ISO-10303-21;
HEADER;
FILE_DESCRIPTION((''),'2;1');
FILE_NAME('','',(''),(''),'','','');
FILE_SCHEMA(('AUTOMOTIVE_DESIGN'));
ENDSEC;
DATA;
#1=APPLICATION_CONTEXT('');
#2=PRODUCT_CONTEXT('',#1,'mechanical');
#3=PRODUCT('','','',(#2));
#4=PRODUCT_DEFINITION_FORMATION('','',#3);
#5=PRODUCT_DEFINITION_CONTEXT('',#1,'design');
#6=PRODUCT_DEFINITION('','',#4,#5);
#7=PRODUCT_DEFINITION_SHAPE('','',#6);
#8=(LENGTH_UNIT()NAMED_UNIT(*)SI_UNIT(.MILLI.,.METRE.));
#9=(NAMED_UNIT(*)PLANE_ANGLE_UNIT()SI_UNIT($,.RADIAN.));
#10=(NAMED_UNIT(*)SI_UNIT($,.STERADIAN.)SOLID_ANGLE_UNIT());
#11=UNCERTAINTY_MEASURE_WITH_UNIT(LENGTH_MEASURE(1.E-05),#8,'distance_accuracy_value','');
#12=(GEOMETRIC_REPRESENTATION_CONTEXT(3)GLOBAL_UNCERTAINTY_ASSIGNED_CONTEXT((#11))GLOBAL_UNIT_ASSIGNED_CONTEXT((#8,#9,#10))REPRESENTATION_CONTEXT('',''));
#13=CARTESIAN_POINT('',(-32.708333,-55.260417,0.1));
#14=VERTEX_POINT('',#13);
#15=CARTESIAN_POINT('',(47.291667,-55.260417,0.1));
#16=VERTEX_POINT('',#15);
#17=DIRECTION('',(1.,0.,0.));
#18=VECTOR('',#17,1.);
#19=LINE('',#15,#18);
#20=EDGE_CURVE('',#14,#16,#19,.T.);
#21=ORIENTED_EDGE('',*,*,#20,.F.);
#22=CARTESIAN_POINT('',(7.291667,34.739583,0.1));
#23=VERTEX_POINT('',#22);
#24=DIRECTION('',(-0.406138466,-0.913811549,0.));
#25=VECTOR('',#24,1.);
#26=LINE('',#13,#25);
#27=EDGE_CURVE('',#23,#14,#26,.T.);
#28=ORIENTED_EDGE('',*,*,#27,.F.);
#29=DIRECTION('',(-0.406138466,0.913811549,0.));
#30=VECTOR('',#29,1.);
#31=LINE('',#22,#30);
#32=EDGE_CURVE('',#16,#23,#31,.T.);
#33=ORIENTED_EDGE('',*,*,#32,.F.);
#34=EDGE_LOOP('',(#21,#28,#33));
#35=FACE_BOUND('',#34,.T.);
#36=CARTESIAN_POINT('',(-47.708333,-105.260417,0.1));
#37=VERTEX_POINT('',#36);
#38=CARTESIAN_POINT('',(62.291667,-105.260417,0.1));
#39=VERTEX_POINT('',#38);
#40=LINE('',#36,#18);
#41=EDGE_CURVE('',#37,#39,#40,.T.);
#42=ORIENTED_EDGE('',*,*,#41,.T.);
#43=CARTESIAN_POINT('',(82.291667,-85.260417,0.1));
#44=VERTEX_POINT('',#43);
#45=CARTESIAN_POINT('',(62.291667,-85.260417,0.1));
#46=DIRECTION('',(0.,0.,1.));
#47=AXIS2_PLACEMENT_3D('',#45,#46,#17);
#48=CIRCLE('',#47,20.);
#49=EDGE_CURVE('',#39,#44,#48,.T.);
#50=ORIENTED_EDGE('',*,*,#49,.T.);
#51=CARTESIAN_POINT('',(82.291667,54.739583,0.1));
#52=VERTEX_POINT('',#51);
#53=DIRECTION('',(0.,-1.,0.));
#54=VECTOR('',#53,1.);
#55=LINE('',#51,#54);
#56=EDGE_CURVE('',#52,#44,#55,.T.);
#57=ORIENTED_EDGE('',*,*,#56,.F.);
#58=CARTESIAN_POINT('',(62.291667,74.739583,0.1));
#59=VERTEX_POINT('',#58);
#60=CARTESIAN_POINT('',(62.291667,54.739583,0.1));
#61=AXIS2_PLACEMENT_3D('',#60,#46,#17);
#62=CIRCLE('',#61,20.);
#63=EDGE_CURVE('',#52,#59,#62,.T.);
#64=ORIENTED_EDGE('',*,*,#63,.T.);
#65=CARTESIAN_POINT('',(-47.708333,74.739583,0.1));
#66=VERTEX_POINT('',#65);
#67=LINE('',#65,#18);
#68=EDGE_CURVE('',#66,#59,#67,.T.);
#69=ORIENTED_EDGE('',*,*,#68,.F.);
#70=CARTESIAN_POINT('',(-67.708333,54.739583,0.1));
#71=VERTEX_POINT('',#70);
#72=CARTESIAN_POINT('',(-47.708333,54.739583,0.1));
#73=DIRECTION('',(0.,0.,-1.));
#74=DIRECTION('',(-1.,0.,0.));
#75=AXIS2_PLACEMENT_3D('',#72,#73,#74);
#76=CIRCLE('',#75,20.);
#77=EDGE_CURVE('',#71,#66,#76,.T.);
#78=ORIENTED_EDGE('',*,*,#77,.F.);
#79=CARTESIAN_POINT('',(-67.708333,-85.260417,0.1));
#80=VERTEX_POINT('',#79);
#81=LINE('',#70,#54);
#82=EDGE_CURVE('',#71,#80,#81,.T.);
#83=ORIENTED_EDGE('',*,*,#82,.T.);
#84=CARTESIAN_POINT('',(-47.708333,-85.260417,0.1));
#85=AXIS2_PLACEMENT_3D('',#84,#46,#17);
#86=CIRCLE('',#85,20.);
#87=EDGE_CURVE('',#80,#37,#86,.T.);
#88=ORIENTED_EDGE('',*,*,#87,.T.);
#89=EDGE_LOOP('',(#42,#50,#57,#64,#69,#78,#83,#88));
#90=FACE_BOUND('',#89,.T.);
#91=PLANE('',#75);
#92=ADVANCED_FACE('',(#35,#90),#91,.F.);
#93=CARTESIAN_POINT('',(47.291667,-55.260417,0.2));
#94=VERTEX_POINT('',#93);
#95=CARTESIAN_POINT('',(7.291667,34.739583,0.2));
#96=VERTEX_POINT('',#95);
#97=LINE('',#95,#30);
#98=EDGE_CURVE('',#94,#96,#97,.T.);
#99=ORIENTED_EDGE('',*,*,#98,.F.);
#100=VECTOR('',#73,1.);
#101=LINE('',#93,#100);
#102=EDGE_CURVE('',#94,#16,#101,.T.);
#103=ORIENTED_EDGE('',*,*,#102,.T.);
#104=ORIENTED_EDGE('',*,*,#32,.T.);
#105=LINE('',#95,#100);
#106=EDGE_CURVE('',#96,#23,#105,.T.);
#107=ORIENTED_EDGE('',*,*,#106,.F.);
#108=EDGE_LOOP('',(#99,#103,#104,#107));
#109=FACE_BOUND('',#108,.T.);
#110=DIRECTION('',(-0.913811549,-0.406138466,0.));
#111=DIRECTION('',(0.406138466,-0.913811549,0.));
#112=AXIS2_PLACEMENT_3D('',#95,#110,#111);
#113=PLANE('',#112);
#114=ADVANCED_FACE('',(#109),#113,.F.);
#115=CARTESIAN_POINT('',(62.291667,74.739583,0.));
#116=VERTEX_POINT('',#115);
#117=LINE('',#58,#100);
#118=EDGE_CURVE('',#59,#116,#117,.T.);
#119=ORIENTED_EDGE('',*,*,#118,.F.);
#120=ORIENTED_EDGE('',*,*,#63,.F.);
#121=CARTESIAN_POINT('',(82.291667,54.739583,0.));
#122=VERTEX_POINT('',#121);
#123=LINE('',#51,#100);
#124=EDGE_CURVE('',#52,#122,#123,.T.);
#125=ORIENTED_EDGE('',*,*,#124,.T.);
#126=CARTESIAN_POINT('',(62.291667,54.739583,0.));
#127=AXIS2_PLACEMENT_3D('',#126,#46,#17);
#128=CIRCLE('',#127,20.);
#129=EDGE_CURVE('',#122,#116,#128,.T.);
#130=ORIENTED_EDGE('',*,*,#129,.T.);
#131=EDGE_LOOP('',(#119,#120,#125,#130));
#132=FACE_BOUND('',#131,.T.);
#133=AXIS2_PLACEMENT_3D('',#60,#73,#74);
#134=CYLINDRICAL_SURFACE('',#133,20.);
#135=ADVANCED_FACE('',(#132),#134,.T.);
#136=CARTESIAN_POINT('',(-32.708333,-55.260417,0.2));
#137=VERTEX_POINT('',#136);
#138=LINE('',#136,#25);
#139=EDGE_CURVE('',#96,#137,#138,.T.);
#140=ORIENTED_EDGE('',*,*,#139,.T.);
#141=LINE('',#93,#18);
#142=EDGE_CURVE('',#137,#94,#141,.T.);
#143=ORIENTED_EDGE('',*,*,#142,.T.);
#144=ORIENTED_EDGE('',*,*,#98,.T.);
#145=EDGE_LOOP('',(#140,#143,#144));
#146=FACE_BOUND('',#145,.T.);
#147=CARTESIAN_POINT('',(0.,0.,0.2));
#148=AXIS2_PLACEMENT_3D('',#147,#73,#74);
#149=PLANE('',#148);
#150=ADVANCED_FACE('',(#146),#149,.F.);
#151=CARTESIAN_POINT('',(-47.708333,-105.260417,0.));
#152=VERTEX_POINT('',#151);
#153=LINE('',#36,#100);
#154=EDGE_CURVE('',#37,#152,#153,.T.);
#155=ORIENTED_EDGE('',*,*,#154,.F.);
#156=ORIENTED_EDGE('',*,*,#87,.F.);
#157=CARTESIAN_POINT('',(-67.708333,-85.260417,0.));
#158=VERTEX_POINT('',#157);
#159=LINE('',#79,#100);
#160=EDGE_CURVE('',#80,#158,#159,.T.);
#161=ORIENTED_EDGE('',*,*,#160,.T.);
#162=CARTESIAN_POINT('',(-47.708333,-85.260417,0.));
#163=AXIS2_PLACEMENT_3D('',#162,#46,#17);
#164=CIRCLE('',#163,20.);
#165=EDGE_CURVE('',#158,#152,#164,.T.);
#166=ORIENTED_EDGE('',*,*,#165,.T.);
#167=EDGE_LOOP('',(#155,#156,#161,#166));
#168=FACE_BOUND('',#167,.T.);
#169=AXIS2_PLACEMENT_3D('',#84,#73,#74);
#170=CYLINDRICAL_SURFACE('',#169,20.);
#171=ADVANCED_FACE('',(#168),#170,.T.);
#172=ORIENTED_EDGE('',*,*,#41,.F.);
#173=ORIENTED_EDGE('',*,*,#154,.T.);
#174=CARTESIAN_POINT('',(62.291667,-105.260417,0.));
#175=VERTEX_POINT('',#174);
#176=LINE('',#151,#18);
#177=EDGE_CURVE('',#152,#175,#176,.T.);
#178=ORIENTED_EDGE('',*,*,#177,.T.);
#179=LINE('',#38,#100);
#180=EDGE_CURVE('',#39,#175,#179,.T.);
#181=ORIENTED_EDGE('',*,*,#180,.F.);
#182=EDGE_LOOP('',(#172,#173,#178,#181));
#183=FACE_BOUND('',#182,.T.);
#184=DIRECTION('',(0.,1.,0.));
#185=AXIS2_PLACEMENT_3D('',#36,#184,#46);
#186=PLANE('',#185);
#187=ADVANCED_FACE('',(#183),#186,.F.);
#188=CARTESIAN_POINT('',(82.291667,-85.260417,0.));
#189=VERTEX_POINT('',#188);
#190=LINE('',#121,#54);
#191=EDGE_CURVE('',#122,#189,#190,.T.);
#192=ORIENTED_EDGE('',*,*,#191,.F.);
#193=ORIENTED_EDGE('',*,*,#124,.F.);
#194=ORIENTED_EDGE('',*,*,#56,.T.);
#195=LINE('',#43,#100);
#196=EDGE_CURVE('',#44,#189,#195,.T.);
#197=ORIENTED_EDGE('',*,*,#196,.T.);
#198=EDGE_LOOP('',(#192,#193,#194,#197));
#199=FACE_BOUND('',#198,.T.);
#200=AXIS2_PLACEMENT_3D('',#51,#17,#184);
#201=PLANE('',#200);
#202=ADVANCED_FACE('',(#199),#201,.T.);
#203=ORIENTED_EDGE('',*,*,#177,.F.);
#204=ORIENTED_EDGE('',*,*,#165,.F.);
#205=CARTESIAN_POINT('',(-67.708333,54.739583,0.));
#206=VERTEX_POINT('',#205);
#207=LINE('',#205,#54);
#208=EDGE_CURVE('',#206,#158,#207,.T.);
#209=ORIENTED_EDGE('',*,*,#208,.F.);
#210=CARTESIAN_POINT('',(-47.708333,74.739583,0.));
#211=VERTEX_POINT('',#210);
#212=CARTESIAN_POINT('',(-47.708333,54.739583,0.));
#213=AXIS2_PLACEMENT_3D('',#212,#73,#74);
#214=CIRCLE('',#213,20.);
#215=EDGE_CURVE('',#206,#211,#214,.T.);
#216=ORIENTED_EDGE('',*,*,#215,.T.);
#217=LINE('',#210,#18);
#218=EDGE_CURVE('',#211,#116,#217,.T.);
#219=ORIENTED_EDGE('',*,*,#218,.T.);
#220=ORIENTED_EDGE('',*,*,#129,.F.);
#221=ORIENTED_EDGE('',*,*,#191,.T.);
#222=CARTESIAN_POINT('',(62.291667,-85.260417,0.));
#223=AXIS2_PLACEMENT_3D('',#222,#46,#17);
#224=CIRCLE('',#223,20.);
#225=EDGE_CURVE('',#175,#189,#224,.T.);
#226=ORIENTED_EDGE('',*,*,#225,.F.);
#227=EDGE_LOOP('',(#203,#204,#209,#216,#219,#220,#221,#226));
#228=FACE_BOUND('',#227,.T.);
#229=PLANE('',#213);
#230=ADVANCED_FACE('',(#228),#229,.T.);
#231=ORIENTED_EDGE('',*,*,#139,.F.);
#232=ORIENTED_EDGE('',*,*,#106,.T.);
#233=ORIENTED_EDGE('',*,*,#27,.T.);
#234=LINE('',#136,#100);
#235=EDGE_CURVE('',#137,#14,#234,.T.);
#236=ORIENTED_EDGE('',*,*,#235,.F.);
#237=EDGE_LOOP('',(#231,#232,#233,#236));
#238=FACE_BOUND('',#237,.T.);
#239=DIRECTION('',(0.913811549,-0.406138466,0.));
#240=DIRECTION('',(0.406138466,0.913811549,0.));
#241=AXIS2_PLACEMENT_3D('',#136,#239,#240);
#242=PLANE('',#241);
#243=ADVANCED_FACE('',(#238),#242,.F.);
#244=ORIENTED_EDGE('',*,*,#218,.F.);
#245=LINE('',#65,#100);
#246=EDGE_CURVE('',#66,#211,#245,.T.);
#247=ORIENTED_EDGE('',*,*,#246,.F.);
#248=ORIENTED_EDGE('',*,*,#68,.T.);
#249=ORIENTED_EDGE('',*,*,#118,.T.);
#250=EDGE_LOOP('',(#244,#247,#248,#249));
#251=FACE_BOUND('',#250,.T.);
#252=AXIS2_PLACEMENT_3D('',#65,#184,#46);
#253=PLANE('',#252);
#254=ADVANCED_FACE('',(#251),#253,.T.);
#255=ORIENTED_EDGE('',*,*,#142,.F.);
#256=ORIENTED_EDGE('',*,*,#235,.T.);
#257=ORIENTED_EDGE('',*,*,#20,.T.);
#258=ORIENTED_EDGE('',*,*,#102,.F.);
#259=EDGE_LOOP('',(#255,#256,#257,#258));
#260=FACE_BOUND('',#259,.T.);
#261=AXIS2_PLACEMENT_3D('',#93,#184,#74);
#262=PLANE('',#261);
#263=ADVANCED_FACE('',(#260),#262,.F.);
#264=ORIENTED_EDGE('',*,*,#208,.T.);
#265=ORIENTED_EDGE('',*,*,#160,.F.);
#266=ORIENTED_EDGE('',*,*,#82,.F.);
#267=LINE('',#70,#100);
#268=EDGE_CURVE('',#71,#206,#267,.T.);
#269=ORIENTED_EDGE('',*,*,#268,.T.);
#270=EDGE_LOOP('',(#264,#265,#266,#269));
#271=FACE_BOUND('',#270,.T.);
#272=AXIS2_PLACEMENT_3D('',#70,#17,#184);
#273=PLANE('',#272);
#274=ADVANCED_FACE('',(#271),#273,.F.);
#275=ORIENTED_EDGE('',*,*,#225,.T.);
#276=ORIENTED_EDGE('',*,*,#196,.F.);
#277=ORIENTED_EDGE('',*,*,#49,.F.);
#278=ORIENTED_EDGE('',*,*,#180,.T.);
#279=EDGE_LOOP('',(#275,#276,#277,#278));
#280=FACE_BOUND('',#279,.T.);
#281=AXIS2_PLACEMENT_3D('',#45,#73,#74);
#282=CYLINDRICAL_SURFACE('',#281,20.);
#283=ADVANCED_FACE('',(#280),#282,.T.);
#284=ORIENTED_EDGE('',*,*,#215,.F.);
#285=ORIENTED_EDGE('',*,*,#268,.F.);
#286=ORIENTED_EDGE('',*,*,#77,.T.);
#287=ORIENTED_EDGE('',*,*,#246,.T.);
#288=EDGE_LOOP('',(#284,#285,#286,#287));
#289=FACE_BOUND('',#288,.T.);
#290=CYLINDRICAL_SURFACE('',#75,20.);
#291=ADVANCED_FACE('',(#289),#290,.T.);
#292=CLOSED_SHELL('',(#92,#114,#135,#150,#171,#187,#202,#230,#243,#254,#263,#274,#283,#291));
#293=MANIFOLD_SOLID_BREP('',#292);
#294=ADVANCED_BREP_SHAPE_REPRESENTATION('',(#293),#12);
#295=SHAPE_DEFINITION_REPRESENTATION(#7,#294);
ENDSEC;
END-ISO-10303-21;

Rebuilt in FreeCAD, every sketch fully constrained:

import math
import FreeCAD as App
import Part
import Sketcher

V = App.Vector

doc = App.newDocument("Part")
params = doc.addObject("Spreadsheet::Sheet", "Params")
for row, (alias, value) in enumerate([
    ("sketch1_radius", "20 mm"),
    ("sketch1_width", "110 mm"),
    ("sketch1_height", "140 mm"),
    ("pad1_length", "0.1 mm"),
    ("sketch2_width", "80 mm"),
    ("pad2_length", "0.1 mm"),
], start=1):
    params.set(f"A{row}", alias)
    params.set(f"B{row}", "=" + value)
    params.setAlias(f"B{row}", alias)

body = doc.addObject("PartDesign::Body", "Body")

sketch1 = body.newObject("Sketcher::SketchObject", "Sketch")
sketch1.AttachmentSupport = (doc.getObject("XY_Plane"), [""])
sketch1.MapMode = "FlatFace"
sketch1.addGeometry([
    Part.LineSegment(V(62, 75, 0), V(-48, 75, 0)),
    Part.ArcOfCircle(Part.Circle(V(-48, 55, 0), V(0, 0, 1), 20), math.radians(90), math.radians(180)),
    Part.LineSegment(V(-68, 55, 0), V(-68, -85, 0)),
    Part.ArcOfCircle(Part.Circle(V(-48, -85, 0), V(0, 0, 1), 20), math.radians(-180), math.radians(-90)),
    Part.LineSegment(V(-48, -105, 0), V(62, -105, 0)),
    Part.ArcOfCircle(Part.Circle(V(62, -85, 0), V(0, 0, 1), 20), math.radians(-90), math.radians(0)),
    Part.LineSegment(V(82, -85, 0), V(82, 55, 0)),
    Part.ArcOfCircle(Part.Circle(V(62, 55, 0), V(0, 0, 1), 20), math.radians(0), math.radians(90)),
], False)
sketch1.addConstraint([
    Sketcher.Constraint("Tangent", 0, 2, 1, 1),
    Sketcher.Constraint("Tangent", 1, 2, 2, 1),
    Sketcher.Constraint("Tangent", 2, 2, 3, 1),
    Sketcher.Constraint("Tangent", 3, 2, 4, 1),
    Sketcher.Constraint("Tangent", 4, 2, 5, 1),
    Sketcher.Constraint("Tangent", 5, 2, 6, 1),
    Sketcher.Constraint("Tangent", 6, 2, 7, 1),
    Sketcher.Constraint("Tangent", 7, 2, 0, 1),
    Sketcher.Constraint("Horizontal", 0),
    Sketcher.Constraint("Vertical", 2),
    Sketcher.Constraint("Horizontal", 4),
    Sketcher.Constraint("Vertical", 6),
    Sketcher.Constraint("Equal", 1, 3),
    Sketcher.Constraint("Equal", 3, 5),
    Sketcher.Constraint("Equal", 5, 7),
    Sketcher.Constraint("Radius", 1, 20.0),
    Sketcher.Constraint("DistanceX", 0, 2, 0, 1, 110.0),
    Sketcher.Constraint("DistanceY", 2, 2, 2, 1, 140.0),
    Sketcher.Constraint("DistanceX", 1, 3, -1, 1, 47.708333),
    Sketcher.Constraint("DistanceY", -1, 1, 1, 3, 54.739583),
])
sketch1.setExpression("Constraints[15]", "Params.sketch1_radius")
sketch1.setExpression("Constraints[16]", "Params.sketch1_width")
sketch1.setExpression("Constraints[17]", "Params.sketch1_height")
pad1 = body.newObject("PartDesign::Pad", "Pad")
pad1.Profile = sketch1
pad1.setExpression("Length", "Params.pad1_length")

sketch2 = body.newObject("Sketcher::SketchObject", "Sketch001")
sketch2.AttachmentSupport = (doc.getObject("XY_Plane"), [""])
sketch2.MapMode = "FlatFace"
sketch2.AttachmentOffset = App.Placement(V(0, 0, 0.1), App.Rotation())
sketch2.addGeometry([
    Part.LineSegment(V(7, 35, 0), V(-33, -55, 0)),
    Part.LineSegment(V(-33, -55, 0), V(47, -55, 0)),
    Part.LineSegment(V(47, -55, 0), V(7, 35, 0)),
], False)
sketch2.addConstraint([
    Sketcher.Constraint("Coincident", 0, 2, 1, 1),
    Sketcher.Constraint("Coincident", 1, 2, 2, 1),
    Sketcher.Constraint("Coincident", 2, 2, 0, 1),
    Sketcher.Constraint("Horizontal", 1),
    Sketcher.Constraint("Equal", 0, 2),
    Sketcher.Constraint("DistanceX", 1, 1, 1, 2, 80.0),
    Sketcher.Constraint("DistanceY", 0, 2, 2, 2, 90.0),
    Sketcher.Constraint("DistanceX", 0, 2, -1, 1, 32.708333),
    Sketcher.Constraint("DistanceY", 0, 2, -1, 1, 55.260417),
])
sketch2.setExpression("Constraints[5]", "Params.sketch2_width")
pad2 = body.newObject("PartDesign::Pad", "Pad001")
pad2.Profile = sketch2
pad2.setExpression("Length", "Params.pad2_length")

doc.recompute()
